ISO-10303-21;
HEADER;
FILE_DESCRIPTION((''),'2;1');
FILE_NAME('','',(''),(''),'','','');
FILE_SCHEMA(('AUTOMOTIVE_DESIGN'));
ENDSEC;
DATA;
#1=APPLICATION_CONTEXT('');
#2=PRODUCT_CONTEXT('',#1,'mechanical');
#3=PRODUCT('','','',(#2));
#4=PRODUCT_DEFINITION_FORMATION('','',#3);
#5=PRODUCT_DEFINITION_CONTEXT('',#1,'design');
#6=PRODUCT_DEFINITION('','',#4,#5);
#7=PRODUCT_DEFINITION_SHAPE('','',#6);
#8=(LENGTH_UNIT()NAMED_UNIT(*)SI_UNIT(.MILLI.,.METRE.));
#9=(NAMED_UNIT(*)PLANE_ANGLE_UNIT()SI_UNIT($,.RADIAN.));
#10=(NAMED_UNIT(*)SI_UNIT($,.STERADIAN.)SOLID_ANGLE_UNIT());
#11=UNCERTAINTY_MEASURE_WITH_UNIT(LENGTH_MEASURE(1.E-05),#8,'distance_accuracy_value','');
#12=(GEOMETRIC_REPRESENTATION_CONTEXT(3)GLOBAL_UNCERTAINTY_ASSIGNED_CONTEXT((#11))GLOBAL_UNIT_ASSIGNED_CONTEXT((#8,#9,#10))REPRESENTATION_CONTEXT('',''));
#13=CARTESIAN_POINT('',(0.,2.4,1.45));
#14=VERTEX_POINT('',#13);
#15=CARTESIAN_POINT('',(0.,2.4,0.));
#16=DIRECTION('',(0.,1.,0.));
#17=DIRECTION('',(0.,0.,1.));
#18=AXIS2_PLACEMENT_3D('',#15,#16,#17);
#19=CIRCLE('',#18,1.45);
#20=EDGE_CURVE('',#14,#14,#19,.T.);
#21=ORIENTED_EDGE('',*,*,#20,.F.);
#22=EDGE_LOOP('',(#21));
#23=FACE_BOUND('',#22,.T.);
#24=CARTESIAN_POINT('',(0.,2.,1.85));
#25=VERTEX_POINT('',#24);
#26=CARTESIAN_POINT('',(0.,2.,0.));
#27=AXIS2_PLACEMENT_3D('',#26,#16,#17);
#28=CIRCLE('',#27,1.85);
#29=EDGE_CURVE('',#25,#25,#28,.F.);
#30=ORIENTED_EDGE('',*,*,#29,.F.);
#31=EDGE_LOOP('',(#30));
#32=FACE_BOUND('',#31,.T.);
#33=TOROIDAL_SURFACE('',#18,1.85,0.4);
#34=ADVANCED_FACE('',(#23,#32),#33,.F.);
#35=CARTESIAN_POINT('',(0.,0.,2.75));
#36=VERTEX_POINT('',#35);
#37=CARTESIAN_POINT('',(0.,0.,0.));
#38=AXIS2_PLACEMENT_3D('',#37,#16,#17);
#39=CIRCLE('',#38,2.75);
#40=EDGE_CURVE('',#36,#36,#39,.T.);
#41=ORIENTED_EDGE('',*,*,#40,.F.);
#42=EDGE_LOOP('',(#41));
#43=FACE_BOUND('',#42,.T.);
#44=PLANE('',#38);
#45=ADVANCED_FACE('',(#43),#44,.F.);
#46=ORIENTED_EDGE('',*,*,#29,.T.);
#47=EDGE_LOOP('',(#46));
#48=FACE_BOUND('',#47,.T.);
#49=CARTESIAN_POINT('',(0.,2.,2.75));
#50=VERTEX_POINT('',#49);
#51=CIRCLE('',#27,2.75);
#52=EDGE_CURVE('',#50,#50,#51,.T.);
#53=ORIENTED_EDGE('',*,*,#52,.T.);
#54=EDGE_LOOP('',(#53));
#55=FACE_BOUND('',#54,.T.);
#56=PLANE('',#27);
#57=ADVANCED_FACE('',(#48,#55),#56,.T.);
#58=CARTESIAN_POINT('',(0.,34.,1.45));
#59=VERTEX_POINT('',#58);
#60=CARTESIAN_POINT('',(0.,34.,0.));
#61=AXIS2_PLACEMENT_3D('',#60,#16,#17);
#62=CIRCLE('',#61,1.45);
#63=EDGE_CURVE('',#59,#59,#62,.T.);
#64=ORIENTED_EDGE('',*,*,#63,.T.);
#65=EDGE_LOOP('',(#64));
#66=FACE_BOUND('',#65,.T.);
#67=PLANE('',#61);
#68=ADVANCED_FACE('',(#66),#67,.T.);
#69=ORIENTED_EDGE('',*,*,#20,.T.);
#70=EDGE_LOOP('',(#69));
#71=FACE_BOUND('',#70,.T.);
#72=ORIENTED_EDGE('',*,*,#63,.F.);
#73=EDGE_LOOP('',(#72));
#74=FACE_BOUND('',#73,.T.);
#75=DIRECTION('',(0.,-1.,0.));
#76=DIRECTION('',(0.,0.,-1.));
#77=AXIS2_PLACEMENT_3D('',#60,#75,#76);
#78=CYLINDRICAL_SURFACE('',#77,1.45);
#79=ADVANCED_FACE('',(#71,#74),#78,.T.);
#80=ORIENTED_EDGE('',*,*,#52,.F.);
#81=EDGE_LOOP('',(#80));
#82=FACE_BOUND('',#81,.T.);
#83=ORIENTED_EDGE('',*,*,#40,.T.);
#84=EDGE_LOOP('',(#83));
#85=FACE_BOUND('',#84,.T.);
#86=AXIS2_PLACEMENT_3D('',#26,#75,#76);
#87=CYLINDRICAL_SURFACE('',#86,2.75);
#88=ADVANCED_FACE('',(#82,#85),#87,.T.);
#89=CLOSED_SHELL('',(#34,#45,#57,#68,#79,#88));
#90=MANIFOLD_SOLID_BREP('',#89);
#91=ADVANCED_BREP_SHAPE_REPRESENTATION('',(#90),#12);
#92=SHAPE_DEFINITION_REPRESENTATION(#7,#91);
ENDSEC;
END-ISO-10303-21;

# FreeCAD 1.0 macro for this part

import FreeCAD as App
import Part
import Sketcher


def edges_at(feature, points):
    """Names of the edges that pass closest to the given points."""
    edges = feature.Shape.Edges
    near = lambda p: min(range(len(edges)), key=lambda i: edges[i].distToShape(Part.Vertex(*p))[0])
    return sorted({f"Edge{near(p) + 1}" for p in points})

doc = App.newDocument("Part")
params = doc.addObject("Spreadsheet::Sheet", "Params")
for row, (alias, value) in enumerate([
    ("sketch1_diameter", "5.5 mm"),
    ("pad1_length", "2 mm"),
    ("sketch2_diameter", "2.9 mm"),
    ("pad2_length", "32 mm"),
    ("fillet_radius", "0.4 mm"),
], start=1):
    params.set(f"A{row}", alias)
    params.set(f"B{row}", "=" + value)
    params.setAlias(f"B{row}", alias)

body = doc.addObject("PartDesign::Body", "Body")

sketch1 = body.newObject("Sketcher::SketchObject", "Sketch")
sketch1.AttachmentSupport = (doc.getObject("XZ_Plane"), [""])
sketch1.MapMode = "FlatFace"
sketch1.addGeometry(Part.Circle(App.Vector(0, 0, 0), App.Vector(0, 0, 1), 2.75), False)
sketch1.addConstraint([
    Sketcher.Constraint("Coincident", 0, 3, -1, 1),
    Sketcher.Constraint("Diameter", 0, 5.5),
])
sketch1.setExpression("Constraints[1]", "Params.sketch1_diameter")
pad1 = body.newObject("PartDesign::Pad", "Pad")
pad1.Profile = sketch1
pad1.setExpression("Length", "Params.pad1_length")
pad1.Reversed = True

sketch2 = body.newObject("Sketcher::SketchObject", "Sketch001")
sketch2.AttachmentSupport = (doc.getObject("XZ_Plane"), [""])
sketch2.MapMode = "FlatFace"
sketch2.AttachmentOffset = App.Placement(App.Vector(0, 0, -2), App.Rotation())
sketch2.addGeometry(Part.Circle(App.Vector(0, 0, 0), App.Vector(0, 0, 1), 1.45), False)
sketch2.addConstraint([
    Sketcher.Constraint("Coincident", 0, 3, -1, 1),
    Sketcher.Constraint("Diameter", 0, 2.9),
])
sketch2.setExpression("Constraints[1]", "Params.sketch2_diameter")
pad2 = body.newObject("PartDesign::Pad", "Pad001")
pad2.Profile = sketch2
pad2.setExpression("Length", "Params.pad2_length")
pad2.Reversed = True
doc.recompute()

fillet = body.newObject("PartDesign::Fillet", "Fillet")
fillet.Base = (pad2, edges_at(pad2, [(-1.45, 2, 0)]))
fillet.setExpression("Radius", "Params.fillet_radius")

doc.recompute()
